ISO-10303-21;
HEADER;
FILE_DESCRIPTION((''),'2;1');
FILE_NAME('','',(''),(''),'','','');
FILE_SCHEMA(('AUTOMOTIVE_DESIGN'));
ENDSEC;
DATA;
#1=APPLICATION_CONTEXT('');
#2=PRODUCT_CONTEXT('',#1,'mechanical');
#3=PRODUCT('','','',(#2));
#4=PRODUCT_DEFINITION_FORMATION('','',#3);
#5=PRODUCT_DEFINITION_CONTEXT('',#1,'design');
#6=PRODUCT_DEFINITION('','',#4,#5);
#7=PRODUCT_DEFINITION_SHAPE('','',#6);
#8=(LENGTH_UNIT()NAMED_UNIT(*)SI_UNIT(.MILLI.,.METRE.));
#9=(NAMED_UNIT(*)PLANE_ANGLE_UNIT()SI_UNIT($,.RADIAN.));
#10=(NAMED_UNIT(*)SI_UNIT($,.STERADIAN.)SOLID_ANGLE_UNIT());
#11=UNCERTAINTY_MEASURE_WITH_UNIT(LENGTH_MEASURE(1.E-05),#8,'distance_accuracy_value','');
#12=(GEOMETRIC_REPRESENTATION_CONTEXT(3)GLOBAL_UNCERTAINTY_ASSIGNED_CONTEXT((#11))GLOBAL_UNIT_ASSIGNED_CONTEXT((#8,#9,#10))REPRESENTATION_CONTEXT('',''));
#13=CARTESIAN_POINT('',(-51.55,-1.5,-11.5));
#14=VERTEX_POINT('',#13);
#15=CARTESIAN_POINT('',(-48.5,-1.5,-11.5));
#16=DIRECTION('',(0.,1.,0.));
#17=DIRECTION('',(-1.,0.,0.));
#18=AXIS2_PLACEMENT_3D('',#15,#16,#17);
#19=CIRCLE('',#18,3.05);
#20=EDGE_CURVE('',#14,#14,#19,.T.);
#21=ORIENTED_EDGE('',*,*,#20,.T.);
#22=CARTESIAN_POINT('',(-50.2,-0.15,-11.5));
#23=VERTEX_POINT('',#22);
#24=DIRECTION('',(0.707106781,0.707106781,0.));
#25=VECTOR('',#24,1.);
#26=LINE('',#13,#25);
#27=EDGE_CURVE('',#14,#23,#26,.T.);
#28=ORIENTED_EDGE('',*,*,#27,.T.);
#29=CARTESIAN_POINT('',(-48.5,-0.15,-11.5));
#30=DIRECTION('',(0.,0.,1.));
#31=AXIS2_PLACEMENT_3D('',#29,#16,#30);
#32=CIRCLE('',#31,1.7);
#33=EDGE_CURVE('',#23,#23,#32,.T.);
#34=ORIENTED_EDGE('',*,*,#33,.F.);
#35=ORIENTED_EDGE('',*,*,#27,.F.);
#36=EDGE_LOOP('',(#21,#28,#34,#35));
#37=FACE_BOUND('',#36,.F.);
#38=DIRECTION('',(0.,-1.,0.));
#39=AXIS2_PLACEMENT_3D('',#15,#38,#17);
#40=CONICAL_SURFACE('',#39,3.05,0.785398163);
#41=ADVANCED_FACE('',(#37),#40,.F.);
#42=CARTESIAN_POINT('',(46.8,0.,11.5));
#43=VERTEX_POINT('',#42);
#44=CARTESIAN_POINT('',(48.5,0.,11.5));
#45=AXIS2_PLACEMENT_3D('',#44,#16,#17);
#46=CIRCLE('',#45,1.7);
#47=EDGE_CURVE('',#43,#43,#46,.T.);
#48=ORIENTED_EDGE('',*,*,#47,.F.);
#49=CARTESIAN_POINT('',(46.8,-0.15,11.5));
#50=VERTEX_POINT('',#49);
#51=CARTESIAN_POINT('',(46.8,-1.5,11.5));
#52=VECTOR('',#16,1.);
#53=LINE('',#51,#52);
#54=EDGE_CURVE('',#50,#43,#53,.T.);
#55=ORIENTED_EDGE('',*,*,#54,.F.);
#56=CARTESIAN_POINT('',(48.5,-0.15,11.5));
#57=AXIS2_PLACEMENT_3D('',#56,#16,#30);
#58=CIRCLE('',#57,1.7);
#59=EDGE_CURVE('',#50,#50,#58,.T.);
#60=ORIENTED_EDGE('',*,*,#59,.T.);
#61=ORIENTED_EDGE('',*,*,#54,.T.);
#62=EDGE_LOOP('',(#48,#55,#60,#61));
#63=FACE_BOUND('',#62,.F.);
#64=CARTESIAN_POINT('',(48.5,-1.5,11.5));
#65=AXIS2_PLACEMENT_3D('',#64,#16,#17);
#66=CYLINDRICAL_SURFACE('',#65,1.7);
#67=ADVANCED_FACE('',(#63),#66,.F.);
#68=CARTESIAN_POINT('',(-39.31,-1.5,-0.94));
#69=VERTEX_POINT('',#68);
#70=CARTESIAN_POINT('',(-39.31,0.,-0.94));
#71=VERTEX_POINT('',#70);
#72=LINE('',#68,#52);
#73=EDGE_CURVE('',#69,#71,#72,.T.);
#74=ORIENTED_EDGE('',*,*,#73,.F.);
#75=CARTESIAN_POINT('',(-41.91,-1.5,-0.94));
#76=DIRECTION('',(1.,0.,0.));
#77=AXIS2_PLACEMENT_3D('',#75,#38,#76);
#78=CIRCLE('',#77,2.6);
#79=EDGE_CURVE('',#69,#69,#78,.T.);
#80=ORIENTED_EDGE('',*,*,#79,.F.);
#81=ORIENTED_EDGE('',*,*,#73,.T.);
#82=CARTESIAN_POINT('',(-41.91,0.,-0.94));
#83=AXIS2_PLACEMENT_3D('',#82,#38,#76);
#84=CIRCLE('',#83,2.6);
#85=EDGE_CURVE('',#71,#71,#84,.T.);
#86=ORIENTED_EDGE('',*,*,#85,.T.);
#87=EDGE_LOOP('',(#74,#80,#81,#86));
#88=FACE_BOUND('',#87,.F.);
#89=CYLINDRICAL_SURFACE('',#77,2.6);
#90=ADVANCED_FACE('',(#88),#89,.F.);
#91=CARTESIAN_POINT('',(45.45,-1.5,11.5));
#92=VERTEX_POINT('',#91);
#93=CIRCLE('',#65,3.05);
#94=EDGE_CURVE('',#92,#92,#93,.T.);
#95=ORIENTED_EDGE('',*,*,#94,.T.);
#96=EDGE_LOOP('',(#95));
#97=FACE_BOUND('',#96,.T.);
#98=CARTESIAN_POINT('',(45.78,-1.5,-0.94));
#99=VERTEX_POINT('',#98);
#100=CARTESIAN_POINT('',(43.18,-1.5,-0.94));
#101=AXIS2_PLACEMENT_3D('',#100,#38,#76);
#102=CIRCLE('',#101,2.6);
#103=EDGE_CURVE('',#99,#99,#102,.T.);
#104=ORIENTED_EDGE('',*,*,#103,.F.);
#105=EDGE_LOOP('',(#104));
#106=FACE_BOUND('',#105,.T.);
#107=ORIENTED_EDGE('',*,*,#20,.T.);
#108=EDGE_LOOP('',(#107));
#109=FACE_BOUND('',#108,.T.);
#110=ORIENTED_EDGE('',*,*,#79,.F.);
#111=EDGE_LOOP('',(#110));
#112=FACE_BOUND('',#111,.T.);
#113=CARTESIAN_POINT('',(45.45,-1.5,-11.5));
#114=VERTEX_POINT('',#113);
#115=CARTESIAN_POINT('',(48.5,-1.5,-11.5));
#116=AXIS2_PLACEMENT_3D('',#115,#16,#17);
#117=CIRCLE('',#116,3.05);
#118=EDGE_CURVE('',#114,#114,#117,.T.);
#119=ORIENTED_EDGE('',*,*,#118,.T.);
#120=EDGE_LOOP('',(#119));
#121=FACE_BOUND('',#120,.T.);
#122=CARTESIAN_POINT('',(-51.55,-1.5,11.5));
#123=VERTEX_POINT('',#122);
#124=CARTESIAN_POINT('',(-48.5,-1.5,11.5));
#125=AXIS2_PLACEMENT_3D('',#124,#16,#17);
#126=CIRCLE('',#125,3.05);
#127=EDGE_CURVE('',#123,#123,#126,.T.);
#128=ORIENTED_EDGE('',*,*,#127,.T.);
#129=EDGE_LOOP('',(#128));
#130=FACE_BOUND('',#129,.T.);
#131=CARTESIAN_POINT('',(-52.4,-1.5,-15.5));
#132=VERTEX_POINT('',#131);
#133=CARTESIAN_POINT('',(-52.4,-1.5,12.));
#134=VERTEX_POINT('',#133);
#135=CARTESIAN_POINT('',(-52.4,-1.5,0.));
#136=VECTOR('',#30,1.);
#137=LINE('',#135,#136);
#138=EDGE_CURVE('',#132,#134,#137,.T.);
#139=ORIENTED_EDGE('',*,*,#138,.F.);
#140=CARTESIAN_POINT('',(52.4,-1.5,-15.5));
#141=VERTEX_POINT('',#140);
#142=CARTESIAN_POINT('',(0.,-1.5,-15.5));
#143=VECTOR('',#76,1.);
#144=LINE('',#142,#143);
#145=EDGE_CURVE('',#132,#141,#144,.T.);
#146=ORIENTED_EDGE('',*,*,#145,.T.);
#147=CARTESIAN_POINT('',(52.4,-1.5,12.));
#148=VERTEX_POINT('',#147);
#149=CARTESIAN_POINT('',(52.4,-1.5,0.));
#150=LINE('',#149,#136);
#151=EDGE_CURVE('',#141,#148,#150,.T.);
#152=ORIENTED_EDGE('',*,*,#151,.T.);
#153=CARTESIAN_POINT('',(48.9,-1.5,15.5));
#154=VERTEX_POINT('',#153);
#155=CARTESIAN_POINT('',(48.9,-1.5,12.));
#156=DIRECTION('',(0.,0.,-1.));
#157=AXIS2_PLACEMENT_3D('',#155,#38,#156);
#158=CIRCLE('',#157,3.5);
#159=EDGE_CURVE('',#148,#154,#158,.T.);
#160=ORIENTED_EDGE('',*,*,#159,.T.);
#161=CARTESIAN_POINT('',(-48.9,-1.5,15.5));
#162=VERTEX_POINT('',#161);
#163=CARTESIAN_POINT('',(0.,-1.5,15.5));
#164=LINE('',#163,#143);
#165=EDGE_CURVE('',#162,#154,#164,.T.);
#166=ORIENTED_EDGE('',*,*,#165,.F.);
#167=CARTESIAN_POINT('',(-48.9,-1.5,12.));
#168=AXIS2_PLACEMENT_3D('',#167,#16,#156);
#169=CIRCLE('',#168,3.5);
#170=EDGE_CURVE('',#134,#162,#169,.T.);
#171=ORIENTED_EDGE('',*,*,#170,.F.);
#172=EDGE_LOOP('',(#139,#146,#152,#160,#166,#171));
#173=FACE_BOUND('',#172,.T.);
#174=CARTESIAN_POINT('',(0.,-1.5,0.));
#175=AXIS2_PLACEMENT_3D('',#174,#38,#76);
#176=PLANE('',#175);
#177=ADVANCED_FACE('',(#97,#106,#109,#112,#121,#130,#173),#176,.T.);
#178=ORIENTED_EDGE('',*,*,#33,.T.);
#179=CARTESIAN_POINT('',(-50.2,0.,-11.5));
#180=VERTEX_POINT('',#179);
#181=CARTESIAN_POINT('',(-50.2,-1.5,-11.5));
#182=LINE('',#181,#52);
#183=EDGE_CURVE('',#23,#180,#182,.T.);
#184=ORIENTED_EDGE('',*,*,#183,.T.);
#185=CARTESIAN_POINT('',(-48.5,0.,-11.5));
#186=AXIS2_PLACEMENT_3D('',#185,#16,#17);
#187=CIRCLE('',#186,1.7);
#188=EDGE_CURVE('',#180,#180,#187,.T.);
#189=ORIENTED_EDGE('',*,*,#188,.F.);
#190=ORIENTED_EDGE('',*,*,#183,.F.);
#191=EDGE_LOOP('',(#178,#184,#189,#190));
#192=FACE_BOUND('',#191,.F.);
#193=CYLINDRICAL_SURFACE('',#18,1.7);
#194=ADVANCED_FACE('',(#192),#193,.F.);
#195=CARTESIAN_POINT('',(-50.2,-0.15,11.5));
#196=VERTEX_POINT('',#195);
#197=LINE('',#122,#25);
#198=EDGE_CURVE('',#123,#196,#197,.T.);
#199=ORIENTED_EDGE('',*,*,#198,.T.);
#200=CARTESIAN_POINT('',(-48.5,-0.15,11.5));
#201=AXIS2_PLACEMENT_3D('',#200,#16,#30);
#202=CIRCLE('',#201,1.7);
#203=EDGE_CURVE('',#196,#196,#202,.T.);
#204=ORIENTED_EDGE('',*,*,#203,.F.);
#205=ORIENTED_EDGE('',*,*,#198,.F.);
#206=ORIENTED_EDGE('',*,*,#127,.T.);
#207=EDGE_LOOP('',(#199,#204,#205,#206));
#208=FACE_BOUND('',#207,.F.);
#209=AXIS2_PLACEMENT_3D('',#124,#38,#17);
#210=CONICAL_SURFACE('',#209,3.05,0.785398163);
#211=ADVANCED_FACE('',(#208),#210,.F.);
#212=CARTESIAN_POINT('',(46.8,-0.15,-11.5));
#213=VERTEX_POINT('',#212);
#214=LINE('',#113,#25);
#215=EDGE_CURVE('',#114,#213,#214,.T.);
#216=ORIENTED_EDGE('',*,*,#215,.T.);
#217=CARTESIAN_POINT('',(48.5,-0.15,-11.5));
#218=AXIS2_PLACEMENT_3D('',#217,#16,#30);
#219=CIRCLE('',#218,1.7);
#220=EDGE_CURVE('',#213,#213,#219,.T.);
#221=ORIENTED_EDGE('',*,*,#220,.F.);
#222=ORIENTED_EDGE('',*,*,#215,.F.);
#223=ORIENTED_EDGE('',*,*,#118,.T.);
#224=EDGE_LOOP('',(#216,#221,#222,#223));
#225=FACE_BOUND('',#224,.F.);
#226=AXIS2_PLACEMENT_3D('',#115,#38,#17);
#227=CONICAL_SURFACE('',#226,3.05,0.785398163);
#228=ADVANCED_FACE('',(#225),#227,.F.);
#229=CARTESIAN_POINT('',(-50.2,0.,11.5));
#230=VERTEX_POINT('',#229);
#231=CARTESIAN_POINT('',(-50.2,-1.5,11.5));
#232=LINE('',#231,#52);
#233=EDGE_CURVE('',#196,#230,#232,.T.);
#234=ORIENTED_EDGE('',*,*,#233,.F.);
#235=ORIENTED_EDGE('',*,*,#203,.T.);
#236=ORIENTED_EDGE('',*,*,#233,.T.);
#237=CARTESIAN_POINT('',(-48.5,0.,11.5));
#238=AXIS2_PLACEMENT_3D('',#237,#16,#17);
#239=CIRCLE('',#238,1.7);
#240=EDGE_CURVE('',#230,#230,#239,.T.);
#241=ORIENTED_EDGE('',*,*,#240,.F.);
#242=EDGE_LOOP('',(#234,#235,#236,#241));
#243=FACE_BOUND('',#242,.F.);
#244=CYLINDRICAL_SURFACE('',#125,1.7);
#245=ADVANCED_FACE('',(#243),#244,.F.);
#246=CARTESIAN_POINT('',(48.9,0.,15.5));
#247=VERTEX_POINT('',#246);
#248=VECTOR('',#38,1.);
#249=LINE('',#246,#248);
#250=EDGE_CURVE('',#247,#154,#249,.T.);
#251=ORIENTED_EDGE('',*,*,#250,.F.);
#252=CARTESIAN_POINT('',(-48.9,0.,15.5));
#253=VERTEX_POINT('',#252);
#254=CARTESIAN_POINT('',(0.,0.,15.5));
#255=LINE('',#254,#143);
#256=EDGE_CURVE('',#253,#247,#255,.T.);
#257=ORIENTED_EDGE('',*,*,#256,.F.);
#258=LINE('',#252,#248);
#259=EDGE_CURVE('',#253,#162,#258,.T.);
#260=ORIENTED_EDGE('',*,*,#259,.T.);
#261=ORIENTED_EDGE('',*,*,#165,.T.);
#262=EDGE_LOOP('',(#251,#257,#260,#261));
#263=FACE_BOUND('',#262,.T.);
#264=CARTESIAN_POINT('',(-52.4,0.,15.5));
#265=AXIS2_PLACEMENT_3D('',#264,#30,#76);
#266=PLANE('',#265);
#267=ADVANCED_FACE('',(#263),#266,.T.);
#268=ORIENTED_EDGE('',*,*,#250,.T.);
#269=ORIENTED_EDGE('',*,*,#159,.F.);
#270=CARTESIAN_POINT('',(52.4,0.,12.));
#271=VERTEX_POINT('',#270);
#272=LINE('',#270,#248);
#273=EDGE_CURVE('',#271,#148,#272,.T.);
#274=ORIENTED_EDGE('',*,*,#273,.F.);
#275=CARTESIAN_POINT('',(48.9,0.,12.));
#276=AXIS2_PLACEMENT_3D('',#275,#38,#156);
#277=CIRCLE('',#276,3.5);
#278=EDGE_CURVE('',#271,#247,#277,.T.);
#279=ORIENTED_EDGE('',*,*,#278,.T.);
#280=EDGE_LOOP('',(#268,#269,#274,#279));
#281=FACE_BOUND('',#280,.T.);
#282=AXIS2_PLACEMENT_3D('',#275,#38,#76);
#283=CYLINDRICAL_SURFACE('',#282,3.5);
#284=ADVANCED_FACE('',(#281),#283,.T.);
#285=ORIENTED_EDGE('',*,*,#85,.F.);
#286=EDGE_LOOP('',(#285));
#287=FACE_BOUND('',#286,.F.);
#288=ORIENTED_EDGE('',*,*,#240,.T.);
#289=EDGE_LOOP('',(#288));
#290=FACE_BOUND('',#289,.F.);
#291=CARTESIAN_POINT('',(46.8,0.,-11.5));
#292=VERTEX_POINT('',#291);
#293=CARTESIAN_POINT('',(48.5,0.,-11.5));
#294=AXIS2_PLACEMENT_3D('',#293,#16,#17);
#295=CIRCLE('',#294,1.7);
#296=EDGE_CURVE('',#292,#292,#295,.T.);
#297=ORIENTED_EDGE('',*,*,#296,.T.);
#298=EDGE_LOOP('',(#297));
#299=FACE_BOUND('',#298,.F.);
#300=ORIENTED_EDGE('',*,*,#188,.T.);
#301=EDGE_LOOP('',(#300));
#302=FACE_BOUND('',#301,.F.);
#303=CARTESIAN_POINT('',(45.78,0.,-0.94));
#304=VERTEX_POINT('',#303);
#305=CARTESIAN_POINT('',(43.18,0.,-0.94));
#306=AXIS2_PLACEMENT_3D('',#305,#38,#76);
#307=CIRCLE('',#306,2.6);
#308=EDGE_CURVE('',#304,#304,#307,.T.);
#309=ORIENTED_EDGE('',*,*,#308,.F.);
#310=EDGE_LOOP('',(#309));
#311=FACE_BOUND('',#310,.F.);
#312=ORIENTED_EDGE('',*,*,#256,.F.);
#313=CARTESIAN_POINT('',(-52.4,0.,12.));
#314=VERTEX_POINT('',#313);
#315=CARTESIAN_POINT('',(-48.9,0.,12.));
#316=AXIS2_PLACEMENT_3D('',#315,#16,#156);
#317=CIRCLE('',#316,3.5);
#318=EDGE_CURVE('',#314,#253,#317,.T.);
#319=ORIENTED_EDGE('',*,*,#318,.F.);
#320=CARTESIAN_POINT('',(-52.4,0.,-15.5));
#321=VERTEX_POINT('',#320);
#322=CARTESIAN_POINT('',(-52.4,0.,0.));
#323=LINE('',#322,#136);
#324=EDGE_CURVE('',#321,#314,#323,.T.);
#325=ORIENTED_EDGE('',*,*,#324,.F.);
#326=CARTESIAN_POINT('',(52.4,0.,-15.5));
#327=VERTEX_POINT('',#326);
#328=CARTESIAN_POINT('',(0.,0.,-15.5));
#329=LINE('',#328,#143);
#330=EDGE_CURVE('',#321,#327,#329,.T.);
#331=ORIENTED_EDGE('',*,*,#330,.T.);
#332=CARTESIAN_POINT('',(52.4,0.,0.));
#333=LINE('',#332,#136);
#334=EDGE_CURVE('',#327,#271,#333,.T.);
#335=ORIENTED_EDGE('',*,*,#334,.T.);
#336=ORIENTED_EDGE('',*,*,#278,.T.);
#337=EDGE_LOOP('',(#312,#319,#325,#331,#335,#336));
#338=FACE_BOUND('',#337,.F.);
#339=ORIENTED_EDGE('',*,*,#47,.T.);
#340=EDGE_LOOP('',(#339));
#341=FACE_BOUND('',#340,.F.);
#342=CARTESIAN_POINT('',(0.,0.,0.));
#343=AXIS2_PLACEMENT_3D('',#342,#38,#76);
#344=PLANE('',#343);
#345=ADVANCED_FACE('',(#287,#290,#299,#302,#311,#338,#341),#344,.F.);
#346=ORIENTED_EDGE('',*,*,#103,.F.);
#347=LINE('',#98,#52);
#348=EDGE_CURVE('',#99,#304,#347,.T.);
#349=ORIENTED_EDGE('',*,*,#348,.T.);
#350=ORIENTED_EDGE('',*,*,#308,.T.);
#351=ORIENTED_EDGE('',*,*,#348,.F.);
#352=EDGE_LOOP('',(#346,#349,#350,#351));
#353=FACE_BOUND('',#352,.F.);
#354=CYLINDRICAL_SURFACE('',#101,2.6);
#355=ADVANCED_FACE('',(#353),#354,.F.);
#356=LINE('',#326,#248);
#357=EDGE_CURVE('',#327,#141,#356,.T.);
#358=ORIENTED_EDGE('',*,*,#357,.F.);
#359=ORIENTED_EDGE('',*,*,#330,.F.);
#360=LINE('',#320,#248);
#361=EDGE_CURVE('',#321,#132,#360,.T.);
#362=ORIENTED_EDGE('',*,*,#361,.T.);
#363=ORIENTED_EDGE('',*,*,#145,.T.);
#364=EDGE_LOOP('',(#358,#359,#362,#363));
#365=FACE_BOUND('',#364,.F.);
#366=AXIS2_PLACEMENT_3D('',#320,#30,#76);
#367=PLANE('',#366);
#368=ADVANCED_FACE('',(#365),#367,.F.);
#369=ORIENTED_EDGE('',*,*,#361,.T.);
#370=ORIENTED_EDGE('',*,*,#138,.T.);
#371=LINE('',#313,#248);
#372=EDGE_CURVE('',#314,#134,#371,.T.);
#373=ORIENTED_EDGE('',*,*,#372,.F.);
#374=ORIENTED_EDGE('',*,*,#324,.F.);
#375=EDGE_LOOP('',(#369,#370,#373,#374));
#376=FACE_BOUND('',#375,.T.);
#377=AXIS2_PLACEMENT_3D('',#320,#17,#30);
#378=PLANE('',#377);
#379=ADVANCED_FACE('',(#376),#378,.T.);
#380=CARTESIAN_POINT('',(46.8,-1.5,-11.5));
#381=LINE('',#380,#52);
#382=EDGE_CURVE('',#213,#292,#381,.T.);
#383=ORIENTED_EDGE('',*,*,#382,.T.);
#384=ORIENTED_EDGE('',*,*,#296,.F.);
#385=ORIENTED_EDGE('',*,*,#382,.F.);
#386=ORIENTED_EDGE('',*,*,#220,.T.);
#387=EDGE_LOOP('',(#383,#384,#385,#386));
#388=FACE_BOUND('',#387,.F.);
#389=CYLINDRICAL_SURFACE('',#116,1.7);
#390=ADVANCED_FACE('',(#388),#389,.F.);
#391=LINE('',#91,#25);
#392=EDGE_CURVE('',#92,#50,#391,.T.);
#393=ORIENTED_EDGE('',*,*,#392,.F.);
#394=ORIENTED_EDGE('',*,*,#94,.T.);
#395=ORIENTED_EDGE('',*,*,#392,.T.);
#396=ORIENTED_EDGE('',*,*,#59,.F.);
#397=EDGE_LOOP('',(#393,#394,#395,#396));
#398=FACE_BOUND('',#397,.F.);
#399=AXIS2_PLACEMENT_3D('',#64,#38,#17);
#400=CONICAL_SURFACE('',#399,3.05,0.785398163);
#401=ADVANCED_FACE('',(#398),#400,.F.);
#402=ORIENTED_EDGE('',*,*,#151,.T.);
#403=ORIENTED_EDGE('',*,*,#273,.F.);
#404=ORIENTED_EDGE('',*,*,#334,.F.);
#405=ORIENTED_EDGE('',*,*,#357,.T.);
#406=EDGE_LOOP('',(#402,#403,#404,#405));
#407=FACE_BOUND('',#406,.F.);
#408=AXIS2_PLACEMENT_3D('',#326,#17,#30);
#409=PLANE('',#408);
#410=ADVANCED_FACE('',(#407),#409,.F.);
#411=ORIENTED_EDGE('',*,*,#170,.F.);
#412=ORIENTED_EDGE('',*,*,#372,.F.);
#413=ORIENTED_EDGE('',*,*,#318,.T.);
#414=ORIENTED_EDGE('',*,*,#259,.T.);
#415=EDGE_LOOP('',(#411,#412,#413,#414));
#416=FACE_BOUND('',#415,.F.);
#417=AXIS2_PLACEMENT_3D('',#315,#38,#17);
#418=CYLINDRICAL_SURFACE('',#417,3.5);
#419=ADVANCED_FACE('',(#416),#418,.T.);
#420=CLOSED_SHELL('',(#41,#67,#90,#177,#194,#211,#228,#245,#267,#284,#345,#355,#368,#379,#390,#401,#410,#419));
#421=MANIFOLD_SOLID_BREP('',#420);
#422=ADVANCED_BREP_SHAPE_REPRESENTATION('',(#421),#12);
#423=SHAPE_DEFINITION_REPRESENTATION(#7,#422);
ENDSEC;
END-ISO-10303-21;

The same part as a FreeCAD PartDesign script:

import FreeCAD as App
import Part
import Sketcher
from FreeCAD import Vector
Q = App.Units.Quantity


def edges_at(feature, points):
    """Names of the edges that pass closest to the given points."""
    edges = feature.Shape.Edges
    near = lambda p: min(range(len(edges)), key=lambda i: edges[i].distToShape(Part.Vertex(*p))[0])
    return sorted({f"Edge{near(p) + 1}" for p in points})

doc = App.newDocument("Part")
body = doc.addObject("PartDesign::Body", "Body")

sketch1 = body.newObject("Sketcher::SketchObject", "Sketch")
sketch1.AttachmentSupport = (doc.getObject("XZ_Plane"), [""])
sketch1.MapMode = "FlatFace"
sketch1.addGeometry([
    Part.LineSegment(Vector(-52, 16, 0), Vector(-52, -16, 0)),
    Part.LineSegment(Vector(-52, -16, 0), Vector(52, -16, 0)),
    Part.LineSegment(Vector(52, -16, 0), Vector(52, 16, 0)),
    Part.LineSegment(Vector(52, 16, 0), Vector(-52, 16, 0)),
], False)
sketch1.addConstraint([
    Sketcher.Constraint("Coincident", 0, 2, 1, 1),
    Sketcher.Constraint("Coincident", 1, 2, 2, 1),
    Sketcher.Constraint("Coincident", 2, 2, 3, 1),
    Sketcher.Constraint("Coincident", 3, 2, 0, 1),
    Sketcher.Constraint("Vertical", 0),
    Sketcher.Constraint("Horizontal", 1),
    Sketcher.Constraint("Vertical", 2),
    Sketcher.Constraint("Horizontal", 3),
    Sketcher.Constraint("Symmetric", 0, 2, 2, 2, -1, 1),
    Sketcher.Constraint("DistanceY", 0, 2, 0, 1, Q("31 mm")),
    Sketcher.Constraint("DistanceX", 1, 1, 1, 2, Q("104.8 mm")),
])
pad1 = body.newObject("PartDesign::Pad", "Pad")
pad1.Profile = sketch1
pad1.Length = 1.5

sketch2 = body.newObject("Sketcher::SketchObject", "Sketch001")
sketch2.AttachmentSupport = (doc.getObject("XZ_Plane"), [""])
sketch2.MapMode = "FlatFace"
sketch2.AttachmentOffset = App.Placement(Vector(0, 0, 1.5), App.Rotation())
sketch2.addGeometry([
    Part.Circle(Vector(-48.5, 11.5, 0), Vector(0, 0, 1), 1.7),
    Part.Circle(Vector(-48.5, -11.5, 0), Vector(0, 0, 1), 1.7),
    Part.Circle(Vector(48.5, -11.5, 0), Vector(0, 0, 1), 1.7),
    Part.Circle(Vector(48.5, 11.5, 0), Vector(0, 0, 1), 1.7),
], False)
sketch2.addConstraint([
    Sketcher.Constraint("Equal", 0, 1),
    Sketcher.Constraint("Equal", 1, 2),
    Sketcher.Constraint("Equal", 2, 3),
    Sketcher.Constraint("Symmetric", 0, 3, 2, 3, -1, 1),
    Sketcher.Constraint("Symmetric", 1, 3, 3, 3, -1, 1),
    Sketcher.Constraint("Symmetric", 1, 3, 2, 3, -2),
    Sketcher.Constraint("Diameter", 0, Q("3.4 mm")),
    Sketcher.Constraint("DistanceY", 1, 3, 0, 3, Q("23 mm")),
    Sketcher.Constraint("DistanceX", 1, 3, 2, 3, Q("97 mm")),
])
doc.recompute()
hole = body.newObject("PartDesign::Hole", "Hole")
hole.Profile = sketch2
hole.ThreadType = "None"
hole.Diameter = 3.4
hole.DepthType = "Dimension"
hole.Depth = 25
hole.DrillPoint = "Flat"
hole.HoleCutType = "Countersink"
hole.HoleCutDiameter = 6.1
hole.HoleCutCountersinkAngle = 90
doc.recompute()

fillet = body.newObject("PartDesign::Fillet", "Fillet")
fillet.Base = (hole, edges_at(hole, [(-52.4, -0.75, 15.5), (52.4, -0.75, 15.5)]))
fillet.Radius = 3.5

sketch3 = body.newObject("Sketcher::SketchObject", "Sketch002")
sketch3.AttachmentSupport = (doc.getObject("XZ_Plane"), [""])
sketch3.MapMode = "FlatFace"
sketch3.AttachmentOffset = App.Placement(Vector(0, 0, 1.5), App.Rotation())
sketch3.addGeometry(Part.Circle(Vector(-41.9, -0.9, 0), Vector(0, 0, 1), 2.6), False)
sketch3.addConstraint([
    Sketcher.Constraint("Diameter", 0, Q("5.2 mm")),
    Sketcher.Constraint("DistanceX", 0, 3, -1, 1, Q("41.91 mm")),
    Sketcher.Constraint("DistanceY", 0, 3, -1, 1, Q("0.94 mm")),
])
pocket1 = body.newObject("PartDesign::Pocket", "Pocket")
pocket1.Profile = sketch3
pocket1.Type = "ThroughAll"
doc.recompute()

linearpattern = body.newObject("PartDesign::LinearPattern", "LinearPattern")
linearpattern.Originals = [pocket1]
linearpattern.Direction = (doc.getObject("X_Axis"), [""])
linearpattern.Mode = "offset"
linearpattern.Offset = 85.09
linearpattern.Occurrences = 2
body.Tip = linearpattern

doc.recompute()
